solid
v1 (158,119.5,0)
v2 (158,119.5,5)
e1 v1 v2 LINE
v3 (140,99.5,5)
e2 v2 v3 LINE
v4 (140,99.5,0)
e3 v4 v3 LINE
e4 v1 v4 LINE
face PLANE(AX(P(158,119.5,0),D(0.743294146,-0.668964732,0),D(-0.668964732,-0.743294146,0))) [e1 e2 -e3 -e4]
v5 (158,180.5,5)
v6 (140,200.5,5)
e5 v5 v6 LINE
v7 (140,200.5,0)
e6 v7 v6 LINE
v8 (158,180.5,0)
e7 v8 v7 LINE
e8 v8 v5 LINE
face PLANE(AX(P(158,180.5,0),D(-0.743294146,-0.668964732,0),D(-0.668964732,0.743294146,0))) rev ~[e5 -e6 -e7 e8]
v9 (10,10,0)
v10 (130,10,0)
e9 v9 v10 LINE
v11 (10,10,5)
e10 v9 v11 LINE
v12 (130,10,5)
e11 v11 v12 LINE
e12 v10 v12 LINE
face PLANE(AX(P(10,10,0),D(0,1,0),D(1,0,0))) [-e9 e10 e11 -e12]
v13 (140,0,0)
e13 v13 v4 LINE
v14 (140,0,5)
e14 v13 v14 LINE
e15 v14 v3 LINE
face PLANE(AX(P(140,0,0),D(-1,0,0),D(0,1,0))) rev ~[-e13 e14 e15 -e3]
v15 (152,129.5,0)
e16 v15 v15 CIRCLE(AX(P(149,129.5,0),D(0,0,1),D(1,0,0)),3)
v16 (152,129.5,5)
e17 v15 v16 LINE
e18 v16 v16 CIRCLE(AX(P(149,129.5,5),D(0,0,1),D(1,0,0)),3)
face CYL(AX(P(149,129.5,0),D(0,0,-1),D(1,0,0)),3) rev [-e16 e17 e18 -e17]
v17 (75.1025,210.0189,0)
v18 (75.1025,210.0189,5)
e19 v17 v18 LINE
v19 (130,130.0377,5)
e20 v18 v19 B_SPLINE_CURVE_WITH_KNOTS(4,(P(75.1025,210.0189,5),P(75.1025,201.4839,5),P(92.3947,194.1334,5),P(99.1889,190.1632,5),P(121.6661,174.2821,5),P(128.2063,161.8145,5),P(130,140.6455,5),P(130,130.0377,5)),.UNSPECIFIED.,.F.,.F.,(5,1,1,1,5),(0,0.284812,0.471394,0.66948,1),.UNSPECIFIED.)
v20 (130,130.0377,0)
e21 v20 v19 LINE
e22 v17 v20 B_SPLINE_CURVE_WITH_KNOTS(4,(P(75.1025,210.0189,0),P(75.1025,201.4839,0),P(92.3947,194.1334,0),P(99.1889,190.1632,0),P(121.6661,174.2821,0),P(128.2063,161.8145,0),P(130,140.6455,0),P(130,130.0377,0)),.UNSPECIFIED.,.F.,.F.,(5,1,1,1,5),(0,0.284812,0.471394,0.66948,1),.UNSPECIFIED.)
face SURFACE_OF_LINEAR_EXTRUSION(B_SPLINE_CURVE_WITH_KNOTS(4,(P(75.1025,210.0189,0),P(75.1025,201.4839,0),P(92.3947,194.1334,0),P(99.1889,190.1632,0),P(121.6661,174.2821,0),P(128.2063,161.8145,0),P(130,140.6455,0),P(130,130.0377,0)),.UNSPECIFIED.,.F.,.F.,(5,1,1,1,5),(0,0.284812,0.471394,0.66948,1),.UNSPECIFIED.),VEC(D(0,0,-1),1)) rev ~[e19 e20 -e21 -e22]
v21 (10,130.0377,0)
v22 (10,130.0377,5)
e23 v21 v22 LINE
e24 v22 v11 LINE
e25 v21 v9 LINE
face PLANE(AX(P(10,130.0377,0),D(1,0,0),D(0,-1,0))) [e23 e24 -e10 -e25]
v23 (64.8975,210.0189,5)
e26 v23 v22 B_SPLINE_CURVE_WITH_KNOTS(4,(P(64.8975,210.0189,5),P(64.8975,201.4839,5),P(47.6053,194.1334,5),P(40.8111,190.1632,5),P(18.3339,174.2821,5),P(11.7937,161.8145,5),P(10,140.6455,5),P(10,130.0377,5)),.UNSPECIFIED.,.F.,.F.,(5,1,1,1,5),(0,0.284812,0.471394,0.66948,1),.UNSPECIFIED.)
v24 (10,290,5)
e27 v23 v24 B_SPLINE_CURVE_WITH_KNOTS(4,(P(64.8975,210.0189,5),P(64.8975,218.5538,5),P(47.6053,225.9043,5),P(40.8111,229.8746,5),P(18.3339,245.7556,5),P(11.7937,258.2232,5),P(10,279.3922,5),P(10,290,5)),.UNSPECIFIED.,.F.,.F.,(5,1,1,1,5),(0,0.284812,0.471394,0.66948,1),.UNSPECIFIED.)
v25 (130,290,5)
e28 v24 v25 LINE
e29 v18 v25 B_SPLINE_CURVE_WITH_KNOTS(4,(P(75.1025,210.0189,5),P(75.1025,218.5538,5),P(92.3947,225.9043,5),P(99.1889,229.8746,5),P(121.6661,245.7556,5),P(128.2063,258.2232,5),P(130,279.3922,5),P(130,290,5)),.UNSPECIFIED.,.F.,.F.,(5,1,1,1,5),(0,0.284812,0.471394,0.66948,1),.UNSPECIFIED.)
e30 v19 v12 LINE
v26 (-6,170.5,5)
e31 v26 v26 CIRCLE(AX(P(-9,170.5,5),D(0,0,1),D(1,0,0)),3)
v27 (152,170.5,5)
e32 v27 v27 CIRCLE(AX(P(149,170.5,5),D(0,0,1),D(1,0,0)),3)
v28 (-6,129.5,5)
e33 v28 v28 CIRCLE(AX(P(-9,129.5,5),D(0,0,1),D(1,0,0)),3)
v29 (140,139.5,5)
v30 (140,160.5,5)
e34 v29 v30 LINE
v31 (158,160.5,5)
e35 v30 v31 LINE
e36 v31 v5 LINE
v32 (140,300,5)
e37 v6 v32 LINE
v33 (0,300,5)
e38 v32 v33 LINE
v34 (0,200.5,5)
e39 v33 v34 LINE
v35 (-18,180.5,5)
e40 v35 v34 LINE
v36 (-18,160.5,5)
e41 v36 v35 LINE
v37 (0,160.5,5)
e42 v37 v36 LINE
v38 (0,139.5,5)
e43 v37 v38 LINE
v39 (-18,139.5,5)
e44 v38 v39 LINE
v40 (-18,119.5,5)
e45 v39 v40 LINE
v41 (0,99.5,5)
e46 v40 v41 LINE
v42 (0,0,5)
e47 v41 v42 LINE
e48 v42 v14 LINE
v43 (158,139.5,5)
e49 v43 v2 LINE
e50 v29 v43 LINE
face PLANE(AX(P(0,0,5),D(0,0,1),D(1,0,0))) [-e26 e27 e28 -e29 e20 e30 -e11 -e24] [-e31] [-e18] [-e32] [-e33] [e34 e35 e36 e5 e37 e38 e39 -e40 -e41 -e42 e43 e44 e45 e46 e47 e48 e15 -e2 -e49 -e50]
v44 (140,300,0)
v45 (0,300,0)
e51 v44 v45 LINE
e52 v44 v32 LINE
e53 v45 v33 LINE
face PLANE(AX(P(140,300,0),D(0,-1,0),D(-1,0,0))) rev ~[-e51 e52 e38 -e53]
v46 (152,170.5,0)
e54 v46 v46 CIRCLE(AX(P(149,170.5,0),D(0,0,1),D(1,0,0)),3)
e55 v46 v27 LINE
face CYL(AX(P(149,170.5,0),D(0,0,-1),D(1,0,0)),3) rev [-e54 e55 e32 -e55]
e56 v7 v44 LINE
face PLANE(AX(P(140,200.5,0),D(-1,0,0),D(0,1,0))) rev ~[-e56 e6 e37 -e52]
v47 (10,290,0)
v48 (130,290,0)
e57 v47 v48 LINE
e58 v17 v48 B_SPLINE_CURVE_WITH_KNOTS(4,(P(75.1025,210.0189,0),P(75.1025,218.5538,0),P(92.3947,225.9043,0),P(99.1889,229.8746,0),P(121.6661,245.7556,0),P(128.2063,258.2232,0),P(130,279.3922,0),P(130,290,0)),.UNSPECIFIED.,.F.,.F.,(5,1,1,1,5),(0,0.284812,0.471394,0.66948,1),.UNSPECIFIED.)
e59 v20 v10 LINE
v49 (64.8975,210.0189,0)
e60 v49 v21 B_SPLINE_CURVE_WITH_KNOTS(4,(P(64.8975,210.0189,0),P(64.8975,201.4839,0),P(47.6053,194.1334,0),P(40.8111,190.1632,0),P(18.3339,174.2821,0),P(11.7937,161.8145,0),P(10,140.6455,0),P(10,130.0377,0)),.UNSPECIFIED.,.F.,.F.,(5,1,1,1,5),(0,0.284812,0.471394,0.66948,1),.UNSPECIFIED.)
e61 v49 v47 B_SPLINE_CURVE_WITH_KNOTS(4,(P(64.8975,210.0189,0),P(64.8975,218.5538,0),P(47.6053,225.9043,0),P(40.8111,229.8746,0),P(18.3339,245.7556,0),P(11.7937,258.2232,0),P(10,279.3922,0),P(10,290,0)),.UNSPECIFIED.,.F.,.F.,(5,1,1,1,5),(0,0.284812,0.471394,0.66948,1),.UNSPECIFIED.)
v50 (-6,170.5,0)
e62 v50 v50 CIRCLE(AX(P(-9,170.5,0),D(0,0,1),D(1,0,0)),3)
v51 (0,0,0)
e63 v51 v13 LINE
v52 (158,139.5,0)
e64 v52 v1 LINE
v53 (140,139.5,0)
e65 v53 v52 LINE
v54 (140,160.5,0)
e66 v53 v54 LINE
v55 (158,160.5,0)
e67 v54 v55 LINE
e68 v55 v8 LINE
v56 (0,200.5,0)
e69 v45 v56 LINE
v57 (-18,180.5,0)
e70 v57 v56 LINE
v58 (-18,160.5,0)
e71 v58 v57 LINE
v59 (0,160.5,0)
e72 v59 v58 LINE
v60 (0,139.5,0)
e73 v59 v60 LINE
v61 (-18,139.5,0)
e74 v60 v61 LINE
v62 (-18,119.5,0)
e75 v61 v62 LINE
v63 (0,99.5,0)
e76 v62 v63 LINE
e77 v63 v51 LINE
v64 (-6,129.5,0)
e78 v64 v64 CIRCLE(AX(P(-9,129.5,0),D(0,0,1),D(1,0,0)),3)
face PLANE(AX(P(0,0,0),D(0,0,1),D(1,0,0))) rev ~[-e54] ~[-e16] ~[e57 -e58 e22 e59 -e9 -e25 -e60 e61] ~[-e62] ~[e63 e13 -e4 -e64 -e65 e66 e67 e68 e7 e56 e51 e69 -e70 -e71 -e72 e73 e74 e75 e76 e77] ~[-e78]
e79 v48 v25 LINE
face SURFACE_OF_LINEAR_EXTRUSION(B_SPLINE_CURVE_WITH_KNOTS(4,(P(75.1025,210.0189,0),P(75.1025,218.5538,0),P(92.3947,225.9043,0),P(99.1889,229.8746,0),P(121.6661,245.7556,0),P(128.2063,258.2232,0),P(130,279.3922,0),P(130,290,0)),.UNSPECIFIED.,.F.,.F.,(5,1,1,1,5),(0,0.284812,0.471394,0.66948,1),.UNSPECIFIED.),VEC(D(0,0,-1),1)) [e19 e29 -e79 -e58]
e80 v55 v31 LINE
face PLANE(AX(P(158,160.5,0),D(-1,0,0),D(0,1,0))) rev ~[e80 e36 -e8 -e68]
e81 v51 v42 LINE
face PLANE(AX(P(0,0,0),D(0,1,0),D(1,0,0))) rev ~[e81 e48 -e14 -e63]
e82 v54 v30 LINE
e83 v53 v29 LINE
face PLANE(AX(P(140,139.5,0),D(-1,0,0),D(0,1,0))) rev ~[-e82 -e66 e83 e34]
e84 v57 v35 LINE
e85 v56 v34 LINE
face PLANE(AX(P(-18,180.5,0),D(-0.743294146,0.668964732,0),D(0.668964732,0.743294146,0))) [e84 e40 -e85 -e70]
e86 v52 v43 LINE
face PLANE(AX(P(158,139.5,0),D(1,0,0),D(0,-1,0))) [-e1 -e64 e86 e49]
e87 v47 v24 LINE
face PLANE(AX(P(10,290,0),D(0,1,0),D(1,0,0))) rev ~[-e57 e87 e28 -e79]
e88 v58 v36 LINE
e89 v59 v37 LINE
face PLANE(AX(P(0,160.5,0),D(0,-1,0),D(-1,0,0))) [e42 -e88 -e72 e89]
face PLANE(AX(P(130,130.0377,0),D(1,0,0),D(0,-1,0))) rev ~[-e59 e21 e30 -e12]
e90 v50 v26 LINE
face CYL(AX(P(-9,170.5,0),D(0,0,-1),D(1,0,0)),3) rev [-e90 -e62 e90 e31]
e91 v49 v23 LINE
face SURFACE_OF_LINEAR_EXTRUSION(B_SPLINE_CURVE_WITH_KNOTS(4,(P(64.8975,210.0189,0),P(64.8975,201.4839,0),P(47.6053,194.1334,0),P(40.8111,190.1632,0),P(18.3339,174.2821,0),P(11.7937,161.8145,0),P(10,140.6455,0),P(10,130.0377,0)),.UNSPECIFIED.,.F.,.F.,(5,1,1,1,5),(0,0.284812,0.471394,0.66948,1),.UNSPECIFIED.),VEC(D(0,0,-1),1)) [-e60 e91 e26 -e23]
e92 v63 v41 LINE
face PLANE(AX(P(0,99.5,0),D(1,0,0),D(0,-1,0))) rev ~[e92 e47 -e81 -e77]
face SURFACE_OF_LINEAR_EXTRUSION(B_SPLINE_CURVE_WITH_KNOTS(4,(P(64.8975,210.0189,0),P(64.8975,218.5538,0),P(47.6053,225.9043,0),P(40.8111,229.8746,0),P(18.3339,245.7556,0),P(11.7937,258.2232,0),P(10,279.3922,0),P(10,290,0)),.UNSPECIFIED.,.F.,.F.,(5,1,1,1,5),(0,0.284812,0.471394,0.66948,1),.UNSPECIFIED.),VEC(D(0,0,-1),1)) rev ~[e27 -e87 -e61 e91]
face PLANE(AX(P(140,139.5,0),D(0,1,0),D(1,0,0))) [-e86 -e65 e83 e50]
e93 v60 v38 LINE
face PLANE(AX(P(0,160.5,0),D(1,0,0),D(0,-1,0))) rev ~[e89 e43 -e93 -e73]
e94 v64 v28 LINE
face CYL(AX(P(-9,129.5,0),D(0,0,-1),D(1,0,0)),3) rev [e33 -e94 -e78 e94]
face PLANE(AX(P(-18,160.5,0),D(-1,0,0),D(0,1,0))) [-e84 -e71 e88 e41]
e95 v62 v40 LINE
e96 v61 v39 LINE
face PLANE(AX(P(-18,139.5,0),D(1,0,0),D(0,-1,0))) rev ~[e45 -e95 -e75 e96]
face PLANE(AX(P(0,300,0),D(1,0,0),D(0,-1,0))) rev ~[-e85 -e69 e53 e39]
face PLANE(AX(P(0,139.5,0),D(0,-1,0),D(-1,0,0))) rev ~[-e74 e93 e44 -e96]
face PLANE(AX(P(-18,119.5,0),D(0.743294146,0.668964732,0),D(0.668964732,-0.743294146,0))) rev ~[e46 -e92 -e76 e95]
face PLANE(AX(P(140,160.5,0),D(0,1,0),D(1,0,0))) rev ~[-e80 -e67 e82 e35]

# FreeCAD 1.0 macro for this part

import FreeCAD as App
import Part
import Sketcher
from FreeCAD import Vector
Q = App.Units.Quantity

doc = App.newDocument("Part")
body = doc.addObject("PartDesign::Body", "Body")

# Sketch on XY plane
sketch1 = body.newObject("Sketcher::SketchObject", "Sketch")
sketch1.AttachmentSupport = (doc.getObject("XY_Plane"), [""])
sketch1.MapMode = "FlatFace"
sketch1.addGeometry([
    Part.LineSegment(Vector(0, 99.5, 0), Vector(0, 0, 0)),  # 0
    Part.LineSegment(Vector(0, 0, 0), Vector(140, 0, 0)),  # 1
    Part.LineSegment(Vector(140, 0, 0), Vector(140, 99.5, 0)),  # 2
    Part.LineSegment(Vector(140, 99.5, 0), Vector(158, 119.5, 0)),  # 3
    Part.LineSegment(Vector(158, 119.5, 0), Vector(158, 139.5, 0)),  # 4
    Part.LineSegment(Vector(158, 139.5, 0), Vector(140, 139.5, 0)),  # 5
    Part.LineSegment(Vector(140, 139.5, 0), Vector(140, 160.5, 0)),  # 6
    Part.LineSegment(Vector(140, 160.5, 0), Vector(158, 160.5, 0)),  # 7
    Part.LineSegment(Vector(158, 160.5, 0), Vector(158, 180.5, 0)),  # 8
    Part.LineSegment(Vector(158, 180.5, 0), Vector(140, 200.5, 0)),  # 9
    Part.LineSegment(Vector(140, 200.5, 0), Vector(140, 300, 0)),  # 10
    Part.LineSegment(Vector(140, 300, 0), Vector(0, 300, 0)),  # 11
    Part.LineSegment(Vector(0, 300, 0), Vector(0, 200.5, 0)),  # 12
    Part.LineSegment(Vector(0, 200.5, 0), Vector(-18, 180.5, 0)),  # 13
    Part.LineSegment(Vector(-18, 180.5, 0), Vector(-18, 160.5, 0)),  # 14
    Part.LineSegment(Vector(-18, 160.5, 0), Vector(0, 160.5, 0)),  # 15
    Part.LineSegment(Vector(0, 160.5, 0), Vector(0, 139.5, 0)),  # 16
    Part.LineSegment(Vector(0, 139.5, 0), Vector(-18, 139.5, 0)),  # 17
    Part.LineSegment(Vector(-18, 139.5, 0), Vector(-18, 119.5, 0)),  # 18
    Part.LineSegment(Vector(-18, 119.5, 0), Vector(0, 99.5, 0)),  # 19
    Part.BSplineCurve([Vector(64.8975, 210.0189, 0), Vector(64.8975, 218.5538, 0), Vector(47.6053, 225.9043, 0), Vector(40.8111, 229.8746, 0), Vector(18.3339, 245.7556, 0), Vector(11.7937, 258.2232, 0), Vector(10, 279.3922, 0), Vector(10, 290, 0)], [5, 1, 1, 1, 5], [0, 0.284812, 0.471394, 0.66948, 1], False, 4, [1, 1, 1, 1, 1, 1, 1, 1], False),  # 20
    Part.LineSegment(Vector(10, 290, 0), Vector(130, 290, 0)),  # 21
    Part.BSplineCurve([Vector(75.1025, 210.0189, 0), Vector(75.1025, 218.5538, 0), Vector(92.3947, 225.9043, 0), Vector(99.1889, 229.8746, 0), Vector(121.6661, 245.7556, 0), Vector(128.2063, 258.2232, 0), Vector(130, 279.3922, 0), Vector(130, 290, 0)], [5, 1, 1, 1, 5], [0, 0.284812, 0.471394, 0.66948, 1], False, 4, [1, 1, 1, 1, 1, 1, 1, 1], False),  # 22
    Part.BSplineCurve([Vector(75.1025, 210.0189, 0), Vector(75.1025, 201.4839, 0), Vector(92.3947, 194.1334, 0), Vector(99.1889, 190.1632, 0), Vector(121.6661, 174.2821, 0), Vector(128.2063, 161.8145, 0), Vector(130, 140.6455, 0), Vector(130, 130.0377, 0)], [5, 1, 1, 1, 5], [0, 0.284812, 0.471394, 0.66948, 1], False, 4, [1, 1, 1, 1, 1, 1, 1, 1], False),  # 23
    Part.LineSegment(Vector(130, 130.0377, 0), Vector(130, 10, 0)),  # 24
    Part.LineSegment(Vector(130, 10, 0), Vector(10, 10, 0)),  # 25
    Part.LineSegment(Vector(10, 10, 0), Vector(10, 130.0377, 0)),  # 26
    Part.BSplineCurve([Vector(64.8975, 210.0189, 0), Vector(64.8975, 201.4839, 0), Vector(47.6053, 194.1334, 0), Vector(40.8111, 190.1632, 0), Vector(18.3339, 174.2821, 0), Vector(11.7937, 161.8145, 0), Vector(10, 140.6455, 0), Vector(10, 130.0377, 0)], [5, 1, 1, 1, 5], [0, 0.284812, 0.471394, 0.66948, 1], False, 4, [1, 1, 1, 1, 1, 1, 1, 1], False),  # 27
    Part.Circle(Vector(-9, 129.5, 0), Vector(0, 0, 1), 3),  # 28
    Part.Circle(Vector(-9, 170.5, 0), Vector(0, 0, 1), 3),  # 29
    Part.Circle(Vector(149, 170.5, 0), Vector(0, 0, 1), 3),  # 30
    Part.Circle(Vector(149, 129.5, 0), Vector(0, 0, 1), 3),  # 31
], False)
sketch1.addConstraint([
    Sketcher.Constraint("Block", 20),
    Sketcher.Constraint("Block", 22),
    Sketcher.Constraint("Block", 23),
    Sketcher.Constraint("Block", 27),
    Sketcher.Constraint("Coincident", 0, 2, 1, 1),
    Sketcher.Constraint("Coincident", 1, 2, 2, 1),
    Sketcher.Constraint("Coincident", 2, 2, 3, 1),
    Sketcher.Constraint("Coincident", 3, 2, 4, 1),
    Sketcher.Constraint("Coincident", 4, 2, 5, 1),
    Sketcher.Constraint("Coincident", 5, 2, 6, 1),
    Sketcher.Constraint("Coincident", 6, 2, 7, 1),
    Sketcher.Constraint("Coincident", 7, 2, 8, 1),
    Sketcher.Constraint("Coincident", 8, 2, 9, 1),
    Sketcher.Constraint("Coincident", 9, 2, 10, 1),
    Sketcher.Constraint("Coincident", 10, 2, 11, 1),
    Sketcher.Constraint("Coincident", 11, 2, 12, 1),
    Sketcher.Constraint("Coincident", 12, 2, 13, 1),
    Sketcher.Constraint("Coincident", 13, 2, 14, 1),
    Sketcher.Constraint("Coincident", 14, 2, 15, 1),
    Sketcher.Constraint("Coincident", 15, 2, 16, 1),
    Sketcher.Constraint("Coincident", 16, 2, 17, 1),
    Sketcher.Constraint("Coincident", 17, 2, 18, 1),
    Sketcher.Constraint("Coincident", 18, 2, 19, 1),
    Sketcher.Constraint("Coincident", 19, 2, 0, 1),
    Sketcher.Constraint("Coincident", 20, 2, 21, 1),
    Sketcher.Constraint("Coincident", 21, 2, 22, 2),
    Sketcher.Constraint("Coincident", 23, 2, 24, 1),
    Sketcher.Constraint("Coincident", 24, 2, 25, 1),
    Sketcher.Constraint("Coincident", 25, 2, 26, 1),
    Sketcher.Constraint("Coincident", 26, 2, 27, 2),
    Sketcher.Constraint("Vertical", 0),
    Sketcher.Constraint("Horizontal", 1),
    Sketcher.Constraint("Vertical", 2),
    Sketcher.Constraint("Vertical", 4),
    Sketcher.Constraint("Horizontal", 5),
    Sketcher.Constraint("Vertical", 6),
    Sketcher.Constraint("Horizontal", 7),
    Sketcher.Constraint("Vertical", 8),
    Sketcher.Constraint("Vertical", 10),
    Sketcher.Constraint("Horizontal", 11),
    Sketcher.Constraint("Vertical", 12),
    Sketcher.Constraint("Vertical", 14),
    Sketcher.Constraint("Horizontal", 15),
    Sketcher.Constraint("Vertical", 16),
    Sketcher.Constraint("Horizontal", 17),
    Sketcher.Constraint("Vertical", 18),
    Sketcher.Constraint("Vertical", 24),
    Sketcher.Constraint("Horizontal", 25),
    Sketcher.Constraint("Vertical", 26),
    Sketcher.Constraint("Coincident", 0, 2, -1, 1),
    Sketcher.Constraint("Equal", 28, 29),
    Sketcher.Constraint("Equal", 29, 30),
    Sketcher.Constraint("Equal", 30, 31),
    Sketcher.Constraint("PointOnObject", 11, 2, -2),
    Sketcher.Constraint("PointOnObject", 15, 2, -2),
    Sketcher.Constraint("Parallel", 3, 13),
    Sketcher.Constraint("Parallel", 9, 19),
    Sketcher.Constraint("Horizontal", 29, 3, 30, 3),
    Sketcher.Constraint("Horizontal", 28, 3, 31, 3),
    Sketcher.Constraint("Horizontal", 9, 2, 12, 2),
    Sketcher.Constraint("Horizontal", 8, 2, 13, 2),
    Sketcher.Constraint("Horizontal", 7, 2, 14, 2),
    Sketcher.Constraint("Horizontal", 5, 2, 16, 2),
    Sketcher.Constraint("Horizontal", 3, 2, 18, 2),
    Sketcher.Constraint("Horizontal", 2, 2, 19, 2),
    Sketcher.Constraint("Vertical", 28, 3, 29, 3),
    Sketcher.Constraint("Vertical", 30, 3, 31, 3),
    Sketcher.Constraint("Vertical", 2, 2, 5, 2),
    Sketcher.Constraint("Vertical", 4, 2, 7, 2),
    Sketcher.Constraint("Vertical", 6, 2, 9, 2),
    Sketcher.Constraint("Vertical", 14, 2, 17, 2),
    Sketcher.Constraint("Equal", 4, 8),
    Sketcher.Constraint("Equal", 2, 10),
    Sketcher.Constraint("Diameter", 28, Q("6 mm")),
    Sketcher.Constraint("DistanceX", 1, 1, 1, 2, Q("140 mm")),
    Sketcher.Constraint("DistanceX", 5, 2, 5, 1, Q("18 mm")),
    Sketcher.Constraint("DistanceY", 4, 1, 4, 2, Q("20 mm")),
    Sketcher.Constraint("DistanceY", -1, 1, 10, 2, Q("300 mm")),
    Sketcher.Constraint("DistanceY", -1, 1, 24, 2, Q("10 mm")),
    Sketcher.Constraint("DistanceY", 3, 2, 31, 3, Q("10 mm")),
    Sketcher.Constraint("DistanceY", 2, 2, 3, 2, Q("20 mm")),
    Sketcher.Constraint("DistanceY", 6, 2, 30, 3, Q("10 mm")),
    Sketcher.Constraint("DistanceY", 6, 1, 6, 2, Q("21 mm")),
    Sketcher.Constraint("DistanceX", 28, 3, -1, 1, Q("9 mm")),
    Sketcher.Constraint("DistanceX", -1, 1, 30, 3, Q("149 mm")),
])
pad1 = body.newObject("PartDesign::Pad", "Pad")
pad1.Profile = sketch1
pad1.Length = 5

doc.recompute()
